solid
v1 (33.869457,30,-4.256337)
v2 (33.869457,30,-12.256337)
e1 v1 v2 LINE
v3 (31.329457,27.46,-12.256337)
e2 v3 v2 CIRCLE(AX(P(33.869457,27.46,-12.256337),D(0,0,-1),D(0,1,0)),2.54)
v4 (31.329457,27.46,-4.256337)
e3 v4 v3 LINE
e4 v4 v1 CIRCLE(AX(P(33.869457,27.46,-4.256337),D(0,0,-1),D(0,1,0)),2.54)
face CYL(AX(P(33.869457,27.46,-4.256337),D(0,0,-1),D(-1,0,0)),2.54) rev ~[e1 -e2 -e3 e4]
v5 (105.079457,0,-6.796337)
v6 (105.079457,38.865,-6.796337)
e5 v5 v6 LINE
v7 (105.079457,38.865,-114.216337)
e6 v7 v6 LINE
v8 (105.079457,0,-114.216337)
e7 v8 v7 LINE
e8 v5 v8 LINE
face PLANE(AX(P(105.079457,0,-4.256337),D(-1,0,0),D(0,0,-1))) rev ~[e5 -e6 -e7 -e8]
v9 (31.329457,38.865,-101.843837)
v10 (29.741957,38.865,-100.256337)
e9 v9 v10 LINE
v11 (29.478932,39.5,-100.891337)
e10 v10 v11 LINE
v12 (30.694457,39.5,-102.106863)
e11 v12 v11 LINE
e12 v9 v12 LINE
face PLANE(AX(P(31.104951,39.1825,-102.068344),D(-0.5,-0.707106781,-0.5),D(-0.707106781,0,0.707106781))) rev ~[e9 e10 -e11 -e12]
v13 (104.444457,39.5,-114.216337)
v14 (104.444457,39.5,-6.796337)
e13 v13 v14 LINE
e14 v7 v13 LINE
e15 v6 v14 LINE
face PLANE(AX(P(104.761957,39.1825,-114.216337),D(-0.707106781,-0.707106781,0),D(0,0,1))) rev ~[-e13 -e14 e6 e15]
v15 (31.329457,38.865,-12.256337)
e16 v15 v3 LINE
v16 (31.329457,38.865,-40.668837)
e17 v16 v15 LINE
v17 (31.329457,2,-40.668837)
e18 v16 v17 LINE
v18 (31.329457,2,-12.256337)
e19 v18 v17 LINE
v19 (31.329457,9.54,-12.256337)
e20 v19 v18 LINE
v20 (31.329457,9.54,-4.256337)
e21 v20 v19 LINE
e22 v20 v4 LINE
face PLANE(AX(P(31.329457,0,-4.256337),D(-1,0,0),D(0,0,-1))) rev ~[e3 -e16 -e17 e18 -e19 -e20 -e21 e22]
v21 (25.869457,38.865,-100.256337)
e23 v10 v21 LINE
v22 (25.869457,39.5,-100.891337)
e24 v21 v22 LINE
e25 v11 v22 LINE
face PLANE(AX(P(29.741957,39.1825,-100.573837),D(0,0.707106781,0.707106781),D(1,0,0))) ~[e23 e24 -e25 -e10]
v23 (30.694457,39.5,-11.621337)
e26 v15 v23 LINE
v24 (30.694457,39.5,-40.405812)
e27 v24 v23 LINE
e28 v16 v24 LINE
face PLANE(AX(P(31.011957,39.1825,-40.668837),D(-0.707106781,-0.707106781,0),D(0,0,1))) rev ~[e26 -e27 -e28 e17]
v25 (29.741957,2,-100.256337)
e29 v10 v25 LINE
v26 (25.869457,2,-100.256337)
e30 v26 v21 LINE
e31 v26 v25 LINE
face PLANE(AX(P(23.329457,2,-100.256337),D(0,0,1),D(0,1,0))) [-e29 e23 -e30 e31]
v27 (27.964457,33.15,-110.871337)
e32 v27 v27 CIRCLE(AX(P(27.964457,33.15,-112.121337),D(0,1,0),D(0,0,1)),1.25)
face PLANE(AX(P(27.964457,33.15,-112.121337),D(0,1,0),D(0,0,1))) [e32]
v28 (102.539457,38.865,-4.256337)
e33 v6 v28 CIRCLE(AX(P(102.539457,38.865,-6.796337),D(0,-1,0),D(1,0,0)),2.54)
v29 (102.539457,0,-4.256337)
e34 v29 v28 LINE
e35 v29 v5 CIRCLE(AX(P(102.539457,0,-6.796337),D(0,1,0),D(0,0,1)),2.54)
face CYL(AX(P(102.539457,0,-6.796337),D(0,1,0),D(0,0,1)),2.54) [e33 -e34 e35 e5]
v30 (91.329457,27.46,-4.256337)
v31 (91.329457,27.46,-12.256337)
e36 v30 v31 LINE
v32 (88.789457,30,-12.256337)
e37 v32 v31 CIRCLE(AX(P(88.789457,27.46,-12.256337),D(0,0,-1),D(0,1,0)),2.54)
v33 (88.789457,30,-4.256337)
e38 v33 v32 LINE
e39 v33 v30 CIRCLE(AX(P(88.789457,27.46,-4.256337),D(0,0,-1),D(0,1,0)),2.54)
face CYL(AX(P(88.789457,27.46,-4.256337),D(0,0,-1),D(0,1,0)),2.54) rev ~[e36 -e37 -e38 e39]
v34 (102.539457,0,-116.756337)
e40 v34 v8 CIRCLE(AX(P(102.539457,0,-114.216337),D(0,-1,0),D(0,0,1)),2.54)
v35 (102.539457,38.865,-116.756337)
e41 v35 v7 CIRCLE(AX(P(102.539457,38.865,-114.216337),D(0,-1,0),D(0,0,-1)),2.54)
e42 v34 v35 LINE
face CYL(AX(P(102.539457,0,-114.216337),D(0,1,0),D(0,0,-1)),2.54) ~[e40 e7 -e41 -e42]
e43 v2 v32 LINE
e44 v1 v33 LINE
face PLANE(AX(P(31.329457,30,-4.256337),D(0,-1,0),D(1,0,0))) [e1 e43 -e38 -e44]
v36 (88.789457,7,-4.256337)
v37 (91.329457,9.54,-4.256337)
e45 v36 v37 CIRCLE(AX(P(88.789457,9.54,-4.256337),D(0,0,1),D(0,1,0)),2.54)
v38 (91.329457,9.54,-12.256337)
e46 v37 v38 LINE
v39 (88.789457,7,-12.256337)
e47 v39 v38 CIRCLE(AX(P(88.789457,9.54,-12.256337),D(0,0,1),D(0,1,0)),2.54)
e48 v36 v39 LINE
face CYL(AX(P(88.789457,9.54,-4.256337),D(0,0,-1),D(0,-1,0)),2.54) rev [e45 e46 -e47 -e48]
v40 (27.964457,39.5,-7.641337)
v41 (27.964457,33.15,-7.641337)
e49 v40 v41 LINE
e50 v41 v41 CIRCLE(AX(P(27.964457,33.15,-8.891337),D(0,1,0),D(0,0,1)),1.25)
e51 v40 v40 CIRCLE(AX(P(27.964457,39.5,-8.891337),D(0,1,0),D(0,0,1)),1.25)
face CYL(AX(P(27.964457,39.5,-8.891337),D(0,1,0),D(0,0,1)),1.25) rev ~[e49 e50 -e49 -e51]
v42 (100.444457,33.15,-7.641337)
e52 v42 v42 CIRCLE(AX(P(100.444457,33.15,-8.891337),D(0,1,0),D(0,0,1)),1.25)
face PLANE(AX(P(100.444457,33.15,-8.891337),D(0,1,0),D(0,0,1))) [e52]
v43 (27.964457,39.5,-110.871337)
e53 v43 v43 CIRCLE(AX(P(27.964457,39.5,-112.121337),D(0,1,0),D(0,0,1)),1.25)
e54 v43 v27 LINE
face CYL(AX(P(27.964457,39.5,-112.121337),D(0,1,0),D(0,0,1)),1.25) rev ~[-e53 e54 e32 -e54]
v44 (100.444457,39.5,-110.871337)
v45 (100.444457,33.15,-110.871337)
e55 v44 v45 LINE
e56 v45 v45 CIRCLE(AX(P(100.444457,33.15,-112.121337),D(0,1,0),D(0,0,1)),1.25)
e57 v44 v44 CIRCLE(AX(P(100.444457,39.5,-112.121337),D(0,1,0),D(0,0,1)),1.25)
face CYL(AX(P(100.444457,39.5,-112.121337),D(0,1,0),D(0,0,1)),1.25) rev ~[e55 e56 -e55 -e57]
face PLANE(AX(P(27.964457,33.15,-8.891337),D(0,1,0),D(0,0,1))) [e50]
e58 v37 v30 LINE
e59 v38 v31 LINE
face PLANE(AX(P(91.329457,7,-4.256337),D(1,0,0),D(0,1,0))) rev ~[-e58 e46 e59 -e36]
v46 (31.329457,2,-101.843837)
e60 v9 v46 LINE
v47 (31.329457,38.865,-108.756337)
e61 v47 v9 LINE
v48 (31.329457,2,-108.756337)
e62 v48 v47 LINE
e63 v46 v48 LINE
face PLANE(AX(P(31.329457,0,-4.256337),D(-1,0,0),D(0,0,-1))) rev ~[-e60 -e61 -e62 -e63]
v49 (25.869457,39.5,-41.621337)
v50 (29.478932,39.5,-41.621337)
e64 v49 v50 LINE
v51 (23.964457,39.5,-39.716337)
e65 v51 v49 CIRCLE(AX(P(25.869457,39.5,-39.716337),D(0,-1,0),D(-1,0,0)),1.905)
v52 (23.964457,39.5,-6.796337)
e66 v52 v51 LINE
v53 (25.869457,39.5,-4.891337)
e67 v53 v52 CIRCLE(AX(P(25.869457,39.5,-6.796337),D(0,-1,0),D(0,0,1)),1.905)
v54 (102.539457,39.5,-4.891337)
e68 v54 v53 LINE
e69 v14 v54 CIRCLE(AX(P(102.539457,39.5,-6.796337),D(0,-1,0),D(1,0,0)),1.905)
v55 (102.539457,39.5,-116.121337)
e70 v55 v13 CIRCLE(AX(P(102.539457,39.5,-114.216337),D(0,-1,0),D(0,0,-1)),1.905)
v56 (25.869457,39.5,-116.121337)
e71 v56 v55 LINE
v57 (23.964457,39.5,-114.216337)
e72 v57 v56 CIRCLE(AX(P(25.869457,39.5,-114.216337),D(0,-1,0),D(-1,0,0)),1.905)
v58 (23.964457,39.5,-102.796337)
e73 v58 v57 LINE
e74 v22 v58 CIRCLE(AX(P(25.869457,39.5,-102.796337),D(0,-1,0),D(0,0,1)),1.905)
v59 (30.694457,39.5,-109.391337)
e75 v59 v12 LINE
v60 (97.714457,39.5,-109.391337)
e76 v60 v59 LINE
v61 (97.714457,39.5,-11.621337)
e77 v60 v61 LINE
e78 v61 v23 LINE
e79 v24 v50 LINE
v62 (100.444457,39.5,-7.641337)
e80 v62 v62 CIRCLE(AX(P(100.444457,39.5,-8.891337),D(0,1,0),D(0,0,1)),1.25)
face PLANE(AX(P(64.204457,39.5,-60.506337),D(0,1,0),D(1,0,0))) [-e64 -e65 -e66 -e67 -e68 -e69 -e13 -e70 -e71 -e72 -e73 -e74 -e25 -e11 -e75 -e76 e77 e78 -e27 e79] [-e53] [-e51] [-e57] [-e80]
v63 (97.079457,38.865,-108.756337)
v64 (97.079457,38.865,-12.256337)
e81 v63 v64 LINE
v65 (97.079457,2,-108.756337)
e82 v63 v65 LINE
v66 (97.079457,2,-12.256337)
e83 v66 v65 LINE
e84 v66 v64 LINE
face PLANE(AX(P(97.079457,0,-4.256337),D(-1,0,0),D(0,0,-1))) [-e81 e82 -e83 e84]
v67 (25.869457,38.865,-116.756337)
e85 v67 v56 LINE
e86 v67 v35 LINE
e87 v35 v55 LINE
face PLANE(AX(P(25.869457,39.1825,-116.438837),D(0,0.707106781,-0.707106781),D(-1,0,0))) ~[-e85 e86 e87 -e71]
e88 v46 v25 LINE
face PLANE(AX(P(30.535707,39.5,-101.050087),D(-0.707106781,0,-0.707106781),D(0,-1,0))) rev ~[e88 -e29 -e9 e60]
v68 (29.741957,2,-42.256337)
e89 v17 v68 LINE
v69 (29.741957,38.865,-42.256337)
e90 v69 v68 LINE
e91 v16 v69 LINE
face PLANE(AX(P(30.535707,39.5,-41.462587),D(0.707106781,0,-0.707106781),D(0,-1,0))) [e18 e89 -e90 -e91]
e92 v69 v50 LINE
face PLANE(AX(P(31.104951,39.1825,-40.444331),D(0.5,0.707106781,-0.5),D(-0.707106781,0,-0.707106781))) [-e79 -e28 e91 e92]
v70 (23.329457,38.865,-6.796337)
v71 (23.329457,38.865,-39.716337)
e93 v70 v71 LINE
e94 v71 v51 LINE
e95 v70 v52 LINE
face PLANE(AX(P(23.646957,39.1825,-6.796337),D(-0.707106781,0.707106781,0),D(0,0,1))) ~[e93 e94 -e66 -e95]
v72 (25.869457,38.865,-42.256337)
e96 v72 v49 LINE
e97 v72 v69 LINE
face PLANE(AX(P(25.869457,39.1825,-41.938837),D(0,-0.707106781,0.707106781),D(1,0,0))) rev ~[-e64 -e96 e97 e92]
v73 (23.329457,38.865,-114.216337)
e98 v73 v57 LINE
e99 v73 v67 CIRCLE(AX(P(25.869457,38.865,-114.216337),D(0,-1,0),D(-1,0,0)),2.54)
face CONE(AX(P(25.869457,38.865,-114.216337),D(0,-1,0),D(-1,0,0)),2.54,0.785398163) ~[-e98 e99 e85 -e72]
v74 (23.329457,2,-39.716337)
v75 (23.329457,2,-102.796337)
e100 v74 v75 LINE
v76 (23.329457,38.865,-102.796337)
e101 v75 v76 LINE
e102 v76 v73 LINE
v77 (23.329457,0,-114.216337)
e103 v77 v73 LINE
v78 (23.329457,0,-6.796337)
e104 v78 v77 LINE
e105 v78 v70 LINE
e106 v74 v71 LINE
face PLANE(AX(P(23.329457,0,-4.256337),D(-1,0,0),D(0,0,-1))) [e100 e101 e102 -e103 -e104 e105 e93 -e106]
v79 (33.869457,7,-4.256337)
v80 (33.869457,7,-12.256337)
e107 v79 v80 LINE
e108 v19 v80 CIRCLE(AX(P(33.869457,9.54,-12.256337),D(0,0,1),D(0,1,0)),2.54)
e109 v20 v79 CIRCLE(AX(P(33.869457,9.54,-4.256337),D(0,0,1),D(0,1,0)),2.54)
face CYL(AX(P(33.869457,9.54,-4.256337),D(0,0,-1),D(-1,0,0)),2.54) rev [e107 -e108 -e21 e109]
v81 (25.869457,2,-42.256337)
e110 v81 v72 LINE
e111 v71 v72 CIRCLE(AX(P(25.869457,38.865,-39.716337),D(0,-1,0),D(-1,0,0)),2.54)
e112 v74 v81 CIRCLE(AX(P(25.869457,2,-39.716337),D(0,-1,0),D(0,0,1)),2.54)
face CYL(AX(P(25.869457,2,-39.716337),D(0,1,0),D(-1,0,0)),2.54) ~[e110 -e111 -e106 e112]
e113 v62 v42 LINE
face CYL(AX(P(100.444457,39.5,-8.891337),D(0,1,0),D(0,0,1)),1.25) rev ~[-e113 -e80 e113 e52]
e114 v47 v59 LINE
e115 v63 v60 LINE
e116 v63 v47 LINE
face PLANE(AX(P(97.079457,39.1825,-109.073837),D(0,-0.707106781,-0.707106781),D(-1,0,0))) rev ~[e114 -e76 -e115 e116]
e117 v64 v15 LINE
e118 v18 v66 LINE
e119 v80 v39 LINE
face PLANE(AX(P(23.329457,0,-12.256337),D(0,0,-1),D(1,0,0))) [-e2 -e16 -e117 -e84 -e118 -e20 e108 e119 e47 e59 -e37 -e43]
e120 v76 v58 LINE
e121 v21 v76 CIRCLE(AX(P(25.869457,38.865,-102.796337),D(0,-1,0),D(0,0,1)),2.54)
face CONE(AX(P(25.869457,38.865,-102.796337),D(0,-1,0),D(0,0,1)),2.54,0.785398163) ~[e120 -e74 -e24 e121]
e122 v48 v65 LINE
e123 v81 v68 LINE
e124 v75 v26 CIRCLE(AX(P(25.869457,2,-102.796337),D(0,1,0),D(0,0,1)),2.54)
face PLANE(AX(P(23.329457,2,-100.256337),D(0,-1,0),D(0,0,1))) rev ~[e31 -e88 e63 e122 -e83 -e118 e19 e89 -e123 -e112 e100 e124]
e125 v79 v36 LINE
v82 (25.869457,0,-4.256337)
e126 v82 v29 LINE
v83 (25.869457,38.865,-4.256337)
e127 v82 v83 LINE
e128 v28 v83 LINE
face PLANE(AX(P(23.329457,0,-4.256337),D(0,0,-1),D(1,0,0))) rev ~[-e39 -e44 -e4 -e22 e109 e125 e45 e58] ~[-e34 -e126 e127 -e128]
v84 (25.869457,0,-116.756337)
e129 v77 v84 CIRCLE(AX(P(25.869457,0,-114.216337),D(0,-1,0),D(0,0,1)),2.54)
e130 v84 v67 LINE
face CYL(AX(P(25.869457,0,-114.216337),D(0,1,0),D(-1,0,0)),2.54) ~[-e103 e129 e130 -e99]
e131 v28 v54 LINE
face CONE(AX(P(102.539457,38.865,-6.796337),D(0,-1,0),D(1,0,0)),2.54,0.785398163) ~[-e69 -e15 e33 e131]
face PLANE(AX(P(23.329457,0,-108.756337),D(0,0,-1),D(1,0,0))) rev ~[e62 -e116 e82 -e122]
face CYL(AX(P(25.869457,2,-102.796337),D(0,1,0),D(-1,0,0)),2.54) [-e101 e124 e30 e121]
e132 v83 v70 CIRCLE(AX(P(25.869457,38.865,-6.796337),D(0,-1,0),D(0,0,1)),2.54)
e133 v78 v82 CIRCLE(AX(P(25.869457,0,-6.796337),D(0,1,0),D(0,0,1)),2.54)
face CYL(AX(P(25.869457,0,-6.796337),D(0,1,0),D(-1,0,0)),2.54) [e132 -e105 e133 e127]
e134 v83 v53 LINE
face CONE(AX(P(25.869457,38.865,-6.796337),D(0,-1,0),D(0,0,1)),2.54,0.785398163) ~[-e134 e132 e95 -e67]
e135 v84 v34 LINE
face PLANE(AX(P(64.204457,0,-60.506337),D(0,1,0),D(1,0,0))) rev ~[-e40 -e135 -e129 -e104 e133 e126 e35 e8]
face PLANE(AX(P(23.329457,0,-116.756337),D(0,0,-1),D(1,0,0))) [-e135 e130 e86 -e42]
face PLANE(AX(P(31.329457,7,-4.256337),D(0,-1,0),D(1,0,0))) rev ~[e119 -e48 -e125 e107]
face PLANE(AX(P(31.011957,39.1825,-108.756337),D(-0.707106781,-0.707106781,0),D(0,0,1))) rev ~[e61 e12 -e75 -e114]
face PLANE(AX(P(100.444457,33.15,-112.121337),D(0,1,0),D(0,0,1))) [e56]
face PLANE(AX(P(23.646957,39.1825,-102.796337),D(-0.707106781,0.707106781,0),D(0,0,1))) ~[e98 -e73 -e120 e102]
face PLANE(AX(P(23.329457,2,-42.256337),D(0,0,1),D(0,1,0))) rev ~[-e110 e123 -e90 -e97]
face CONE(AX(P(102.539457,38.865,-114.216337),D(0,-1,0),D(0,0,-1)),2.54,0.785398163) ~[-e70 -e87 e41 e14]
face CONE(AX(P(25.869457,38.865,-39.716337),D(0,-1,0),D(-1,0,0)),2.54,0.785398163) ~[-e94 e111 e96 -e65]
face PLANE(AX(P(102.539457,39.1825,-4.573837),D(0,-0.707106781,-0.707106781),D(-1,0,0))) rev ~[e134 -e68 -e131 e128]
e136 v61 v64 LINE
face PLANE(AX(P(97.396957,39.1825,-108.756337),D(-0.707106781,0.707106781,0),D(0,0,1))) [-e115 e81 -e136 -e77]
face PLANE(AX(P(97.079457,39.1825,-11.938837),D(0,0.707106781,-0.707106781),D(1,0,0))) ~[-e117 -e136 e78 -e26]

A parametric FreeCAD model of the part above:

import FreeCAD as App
import Part
import Sketcher
from FreeCAD import Vector


def edges_at(feature, points):
    """Names of the edges that pass closest to the given points."""
    edges = feature.Shape.Edges
    near = lambda p: min(range(len(edges)), key=lambda i: edges[i].distToShape(Part.Vertex(*p))[0])
    return sorted({f"Edge{near(p) + 1}" for p in points})


def faces_at(feature, points):
    """Names of the faces that lie closest to the given points."""
    faces = feature.Shape.Faces
    near = lambda p: min(range(len(faces)), key=lambda i: faces[i].distToShape(Part.Vertex(*p))[0])
    return sorted({f"Face{near(p) + 1}" for p in points})

doc = App.newDocument("Part")
body = doc.addObject("PartDesign::Body", "Body")

# Sketch on XZ plane
sketch1 = doc.addObject("Sketcher::SketchObject", "Sketch")
body.addObject(sketch1)
sketch1.AttachmentSupport = (doc.XZ_Plane, [""])
sketch1.MapMode = "FlatFace"
sketch1.addGeometry(Part.LineSegment(Vector(23.329457, -116.756337, 0), Vector(23.329457, -4.256337, 0)), False)
sketch1.addGeometry(Part.LineSegment(Vector(23.329457, -4.256337, 0), Vector(105.079457, -4.256337, 0)), False)
sketch1.addGeometry(Part.LineSegment(Vector(105.079457, -4.256337, 0), Vector(105.079457, -116.756337, 0)), False)
sketch1.addGeometry(Part.LineSegment(Vector(105.079457, -116.756337, 0), Vector(23.329457, -116.756337, 0)), False)
sketch1.addConstraint(Sketcher.Constraint("Coincident", 0, 2, 1, 1))
sketch1.addConstraint(Sketcher.Constraint("Coincident", 1, 2, 2, 1))
sketch1.addConstraint(Sketcher.Constraint("Coincident", 2, 2, 3, 1))
sketch1.addConstraint(Sketcher.Constraint("Coincident", 3, 2, 0, 1))
sketch1.addConstraint(Sketcher.Constraint("Vertical", 0))
sketch1.addConstraint(Sketcher.Constraint("Horizontal", 1))
sketch1.addConstraint(Sketcher.Constraint("Vertical", 2))
sketch1.addConstraint(Sketcher.Constraint("Horizontal", 3))
sketch1.addConstraint(Sketcher.Constraint("DistanceY", 0, 1, 0, 2, 112.5))
sketch1.addConstraint(Sketcher.Constraint("DistanceX", 1, 1, 1, 2, 81.75))
sketch1.addConstraint(Sketcher.Constraint("DistanceX", -1, 1, 0, 2, 23.329457))
sketch1.addConstraint(Sketcher.Constraint("DistanceY", 0, 2, -1, 1, 4.256337))
pad1 = doc.addObject("PartDesign::Pad", "Pad")
body.addObject(pad1)
pad1.Profile = sketch1
pad1.Length = 39.5
pad1.Reversed = True
doc.recompute()

thickness = doc.addObject("PartDesign::Thickness", "Thickness")
body.addObject(thickness)
thickness.Base = (pad1, faces_at(pad1, [(64.204, 39.5, -60.506)]))
thickness.Value = 8
thickness.Reversed = True
thickness.Join = "Intersection"

# Sketch on XZ plane
sketch2 = doc.addObject("Sketcher::SketchObject", "Sketch001")
body.addObject(sketch2)
sketch2.AttachmentSupport = (doc.XZ_Plane, [""])
sketch2.MapMode = "FlatFace"
sketch2.AttachmentOffset = App.Placement(Vector(0, 0, -8), App.Rotation())
sketch2.addGeometry(Part.LineSegment(Vector(97.079457, -12.256337, 0), Vector(31.329457, -12.256337, 0)), False)
sketch2.addGeometry(Part.LineSegment(Vector(31.329457, -12.256337, 0), Vector(31.329457, -108.756337, 0)), False)
sketch2.addGeometry(Part.LineSegment(Vector(31.329457, -108.756337, 0), Vector(97.079457, -108.756337, 0)), False)
sketch2.addGeometry(Part.LineSegment(Vector(97.079457, -108.756337, 0), Vector(97.079457, -12.256337, 0)), False)
sketch2.addConstraint(Sketcher.Constraint("Coincident", 0, 2, 1, 1))
sketch2.addConstraint(Sketcher.Constraint("Coincident", 1, 2, 2, 1))
sketch2.addConstraint(Sketcher.Constraint("Coincident", 2, 2, 3, 1))
sketch2.addConstraint(Sketcher.Constraint("Coincident", 3, 2, 0, 1))
sketch2.addConstraint(Sketcher.Constraint("Horizontal", 0))
sketch2.addConstraint(Sketcher.Constraint("Vertical", 1))
sketch2.addConstraint(Sketcher.Constraint("Horizontal", 2))
sketch2.addConstraint(Sketcher.Constraint("Vertical", 3))
sketch2.addConstraint(Sketcher.Constraint("DistanceY", 1, 2, 1, 1, 96.5))
sketch2.addConstraint(Sketcher.Constraint("DistanceX", 0, 2, 0, 1, 65.75))
sketch2.addConstraint(Sketcher.Constraint("DistanceX", -1, 1, 0, 2, 31.329457))
sketch2.addConstraint(Sketcher.Constraint("DistanceY", 0, 2, -1, 1, 12.256337))
pocket1 = doc.addObject("PartDesign::Pocket", "Pocket")
body.addObject(pocket1)
pocket1.Profile = sketch2
pocket1.Length = 6
pocket1.Reversed = True

# Sketch on YZ plane
sketch3 = doc.addObject("Sketcher::SketchObject", "Sketch002")
body.addObject(sketch3)
sketch3.AttachmentSupport = (doc.YZ_Plane, [""])
sketch3.MapMode = "FlatFace"
sketch3.AttachmentOffset = App.Placement(Vector(0, 0, 23.329457), App.Rotation())
sketch3.addGeometry(Part.LineSegment(Vector(39.5, -100.256337, 0), Vector(2, -100.256337, 0)), False)
sketch3.addGeometry(Part.LineSegment(Vector(2, -100.256337, 0), Vector(2, -42.256337, 0)), False)
sketch3.addGeometry(Part.LineSegment(Vector(2, -42.256337, 0), Vector(39.5, -42.256337, 0)), False)
sketch3.addGeometry(Part.LineSegment(Vector(39.5, -42.256337, 0), Vector(39.5, -100.256337, 0)), False)
sketch3.addConstraint(Sketcher.Constraint("Coincident", 0, 2, 1, 1))
sketch3.addConstraint(Sketcher.Constraint("Coincident", 1, 2, 2, 1))
sketch3.addConstraint(Sketcher.Constraint("Coincident", 2, 2, 3, 1))
sketch3.addConstraint(Sketcher.Constraint("Coincident", 3, 2, 0, 1))
sketch3.addConstraint(Sketcher.Constraint("Horizontal", 0))
sketch3.addConstraint(Sketcher.Constraint("Vertical", 1))
sketch3.addConstraint(Sketcher.Constraint("Horizontal", 2))
sketch3.addConstraint(Sketcher.Constraint("Vertical", 3))
sketch3.addConstraint(Sketcher.Constraint("DistanceY", 1, 1, 1, 2, 58.0))
sketch3.addConstraint(Sketcher.Constraint("DistanceX", 0, 2, 0, 1, 37.5))
sketch3.addConstraint(Sketcher.Constraint("DistanceX", -1, 1, 0, 2, 2.0))
sketch3.addConstraint(Sketcher.Constraint("DistanceY", 0, 2, -1, 1, 100.256337))
pocket2 = doc.addObject("PartDesign::Pocket", "Pocket001")
body.addObject(pocket2)
pocket2.Profile = sketch3
pocket2.Type = "UpToFirst"
pocket2.Reversed = True

# Sketch on XY plane
sketch4 = doc.addObject("Sketcher::SketchObject", "Sketch003")
body.addObject(sketch4)
sketch4.AttachmentSupport = (doc.XY_Plane, [""])
sketch4.MapMode = "FlatFace"
sketch4.AttachmentOffset = App.Placement(Vector(0, 0, -4.256337), App.Rotation())
sketch4.addGeometry(Part.LineSegment(Vector(31.329457, 30, 0), Vector(31.329457, 7, 0)), False)
sketch4.addGeometry(Part.LineSegment(Vector(31.329457, 7, 0), Vector(91.329457, 7, 0)), False)
sketch4.addGeometry(Part.LineSegment(Vector(91.329457, 7, 0), Vector(91.329457, 30, 0)), False)
sketch4.addGeometry(Part.LineSegment(Vector(91.329457, 30, 0), Vector(31.329457, 30, 0)), False)
sketch4.addConstraint(Sketcher.Constraint("Coincident", 0, 2, 1, 1))
sketch4.addConstraint(Sketcher.Constraint("Coincident", 1, 2, 2, 1))
sketch4.addConstraint(Sketcher.Constraint("Coincident", 2, 2, 3, 1))
sketch4.addConstraint(Sketcher.Constraint("Coincident", 3, 2, 0, 1))
sketch4.addConstraint(Sketcher.Constraint("Vertical", 0))
sketch4.addConstraint(Sketcher.Constraint("Horizontal", 1))
sketch4.addConstraint(Sketcher.Constraint("Vertical", 2))
sketch4.addConstraint(Sketcher.Constraint("Horizontal", 3))
sketch4.addConstraint(Sketcher.Constraint("DistanceX", 1, 1, 1, 2, 60.0))
sketch4.addConstraint(Sketcher.Constraint("DistanceY", 0, 2, 0, 1, 23.0))
sketch4.addConstraint(Sketcher.Constraint("DistanceY", -1, 1, 0, 2, 7.0))
sketch4.addConstraint(Sketcher.Constraint("DistanceX", -1, 1, 0, 2, 31.329457))
pocket3 = doc.addObject("PartDesign::Pocket", "Pocket002")
body.addObject(pocket3)
pocket3.Profile = sketch4
pocket3.Type = "UpToFirst"
doc.recompute()

fillet = doc.addObject("PartDesign::Fillet", "Fillet")
body.addObject(fillet)
fillet.Base = (pocket3, edges_at(pocket3, [
    (23.329, 20.75, -100.256),
    (23.329, 20.75, -42.256),
    (23.329, 19.75, -116.756),
    (105.079, 19.75, -116.756),
    (105.079, 19.75, -4.256),
    (23.329, 19.75, -4.256),
]))
fillet.Radius = 2.54
doc.recompute()

chamfer = doc.addObject("PartDesign::Chamfer", "Chamfer")
body.addObject(chamfer)
chamfer.Base = (fillet, edges_at(fillet, [(31.329, 20.75, -100.256), (31.329, 20.75, -42.256)]))
chamfer.Size = 1.5875
doc.recompute()

fillet2 = doc.addObject("PartDesign::Fillet", "Fillet001")
body.addObject(fillet2)
fillet2.Base = (chamfer, edges_at(chamfer, [
    (31.329, 7, -8.256),
    (31.329, 30, -8.256),
    (91.329, 30, -8.256),
    (91.329, 7, -8.256),
]))
fillet2.Radius = 2.54
doc.recompute()

chamfer2 = doc.addObject("PartDesign::Chamfer", "Chamfer001")
body.addObject(chamfer2)
chamfer2.Base = (fillet2, edges_at(fillet2, [
    (31.329, 39.5, -26.463),
    (27.806, 39.5, -42.256),
    (27.806, 39.5, -100.256),
    (30.536, 39.5, -101.05),
    (30.536, 39.5, -41.463),
    (31.329, 39.5, -105.3),
    (64.204, 39.5, -12.256),
    (97.079, 39.5, -60.506),
    (64.204, 39.5, -108.756),
    (23.329, 39.5, -23.256),
    (64.204, 39.5, -4.256),
    (105.079, 39.5, -60.506),
    (64.204, 39.5, -116.756),
    (23.329, 39.5, -108.506),
    (104.336, 39.5, -116.012),
    (104.336, 39.5, -5),
    (24.073, 39.5, -5),
    (24.073, 39.5, -116.012),
    (24.073, 39.5, -101),
    (24.073, 39.5, -41.512),
]))
chamfer2.Size = 0.635

# Sketch on XZ plane
sketch5 = doc.addObject("Sketcher::SketchObject", "Sketch004")
body.addObject(sketch5)
sketch5.AttachmentSupport = (doc.XZ_Plane, [""])
sketch5.MapMode = "FlatFace"
sketch5.AttachmentOffset = App.Placement(Vector(0, 0, -39.5), App.Rotation())
sketch5.addGeometry(Part.Circle(Vector(27.964457, -112.121337, 0), Vector(0, 0, 1), 1.25), False)
sketch5.addGeometry(Part.Circle(Vector(100.444457, -112.121337, 0), Vector(0, 0, 1), 1.25), False)
sketch5.addGeometry(Part.Circle(Vector(27.964457, -8.891337, 0), Vector(0, 0, 1), 1.25), False)
sketch5.addGeometry(Part.Circle(Vector(100.444457, -8.891337, 0), Vector(0, 0, 1), 1.25), False)
sketch5.addConstraint(Sketcher.Constraint("Equal", 0, 1))
sketch5.addConstraint(Sketcher.Constraint("Equal", 1, 2))
sketch5.addConstraint(Sketcher.Constraint("Equal", 2, 3))
sketch5.addConstraint(Sketcher.Constraint("Horizontal", 0, 3, 1, 3))
sketch5.addConstraint(Sketcher.Constraint("Horizontal", 2, 3, 3, 3))
sketch5.addConstraint(Sketcher.Constraint("Vertical", 0, 3, 2, 3))
sketch5.addConstraint(Sketcher.Constraint("Vertical", 1, 3, 3, 3))
sketch5.addConstraint(Sketcher.Constraint("Diameter", 0, 2.5))
sketch5.addConstraint(Sketcher.Constraint("DistanceX", 0, 3, 1, 3, 72.48))
sketch5.addConstraint(Sketcher.Constraint("DistanceY", 0, 3, 2, 3, 103.23))
sketch5.addConstraint(Sketcher.Constraint("DistanceX", -1, 1, 0, 3, 27.964457))
sketch5.addConstraint(Sketcher.Constraint("DistanceY", 0, 3, -1, 1, 112.121337))
pocket4 = doc.addObject("PartDesign::Pocket", "Pocket003")
body.addObject(pocket4)
pocket4.Profile = sketch5
pocket4.Length = 6.35
pocket4.Reversed = True

doc.recompute()
